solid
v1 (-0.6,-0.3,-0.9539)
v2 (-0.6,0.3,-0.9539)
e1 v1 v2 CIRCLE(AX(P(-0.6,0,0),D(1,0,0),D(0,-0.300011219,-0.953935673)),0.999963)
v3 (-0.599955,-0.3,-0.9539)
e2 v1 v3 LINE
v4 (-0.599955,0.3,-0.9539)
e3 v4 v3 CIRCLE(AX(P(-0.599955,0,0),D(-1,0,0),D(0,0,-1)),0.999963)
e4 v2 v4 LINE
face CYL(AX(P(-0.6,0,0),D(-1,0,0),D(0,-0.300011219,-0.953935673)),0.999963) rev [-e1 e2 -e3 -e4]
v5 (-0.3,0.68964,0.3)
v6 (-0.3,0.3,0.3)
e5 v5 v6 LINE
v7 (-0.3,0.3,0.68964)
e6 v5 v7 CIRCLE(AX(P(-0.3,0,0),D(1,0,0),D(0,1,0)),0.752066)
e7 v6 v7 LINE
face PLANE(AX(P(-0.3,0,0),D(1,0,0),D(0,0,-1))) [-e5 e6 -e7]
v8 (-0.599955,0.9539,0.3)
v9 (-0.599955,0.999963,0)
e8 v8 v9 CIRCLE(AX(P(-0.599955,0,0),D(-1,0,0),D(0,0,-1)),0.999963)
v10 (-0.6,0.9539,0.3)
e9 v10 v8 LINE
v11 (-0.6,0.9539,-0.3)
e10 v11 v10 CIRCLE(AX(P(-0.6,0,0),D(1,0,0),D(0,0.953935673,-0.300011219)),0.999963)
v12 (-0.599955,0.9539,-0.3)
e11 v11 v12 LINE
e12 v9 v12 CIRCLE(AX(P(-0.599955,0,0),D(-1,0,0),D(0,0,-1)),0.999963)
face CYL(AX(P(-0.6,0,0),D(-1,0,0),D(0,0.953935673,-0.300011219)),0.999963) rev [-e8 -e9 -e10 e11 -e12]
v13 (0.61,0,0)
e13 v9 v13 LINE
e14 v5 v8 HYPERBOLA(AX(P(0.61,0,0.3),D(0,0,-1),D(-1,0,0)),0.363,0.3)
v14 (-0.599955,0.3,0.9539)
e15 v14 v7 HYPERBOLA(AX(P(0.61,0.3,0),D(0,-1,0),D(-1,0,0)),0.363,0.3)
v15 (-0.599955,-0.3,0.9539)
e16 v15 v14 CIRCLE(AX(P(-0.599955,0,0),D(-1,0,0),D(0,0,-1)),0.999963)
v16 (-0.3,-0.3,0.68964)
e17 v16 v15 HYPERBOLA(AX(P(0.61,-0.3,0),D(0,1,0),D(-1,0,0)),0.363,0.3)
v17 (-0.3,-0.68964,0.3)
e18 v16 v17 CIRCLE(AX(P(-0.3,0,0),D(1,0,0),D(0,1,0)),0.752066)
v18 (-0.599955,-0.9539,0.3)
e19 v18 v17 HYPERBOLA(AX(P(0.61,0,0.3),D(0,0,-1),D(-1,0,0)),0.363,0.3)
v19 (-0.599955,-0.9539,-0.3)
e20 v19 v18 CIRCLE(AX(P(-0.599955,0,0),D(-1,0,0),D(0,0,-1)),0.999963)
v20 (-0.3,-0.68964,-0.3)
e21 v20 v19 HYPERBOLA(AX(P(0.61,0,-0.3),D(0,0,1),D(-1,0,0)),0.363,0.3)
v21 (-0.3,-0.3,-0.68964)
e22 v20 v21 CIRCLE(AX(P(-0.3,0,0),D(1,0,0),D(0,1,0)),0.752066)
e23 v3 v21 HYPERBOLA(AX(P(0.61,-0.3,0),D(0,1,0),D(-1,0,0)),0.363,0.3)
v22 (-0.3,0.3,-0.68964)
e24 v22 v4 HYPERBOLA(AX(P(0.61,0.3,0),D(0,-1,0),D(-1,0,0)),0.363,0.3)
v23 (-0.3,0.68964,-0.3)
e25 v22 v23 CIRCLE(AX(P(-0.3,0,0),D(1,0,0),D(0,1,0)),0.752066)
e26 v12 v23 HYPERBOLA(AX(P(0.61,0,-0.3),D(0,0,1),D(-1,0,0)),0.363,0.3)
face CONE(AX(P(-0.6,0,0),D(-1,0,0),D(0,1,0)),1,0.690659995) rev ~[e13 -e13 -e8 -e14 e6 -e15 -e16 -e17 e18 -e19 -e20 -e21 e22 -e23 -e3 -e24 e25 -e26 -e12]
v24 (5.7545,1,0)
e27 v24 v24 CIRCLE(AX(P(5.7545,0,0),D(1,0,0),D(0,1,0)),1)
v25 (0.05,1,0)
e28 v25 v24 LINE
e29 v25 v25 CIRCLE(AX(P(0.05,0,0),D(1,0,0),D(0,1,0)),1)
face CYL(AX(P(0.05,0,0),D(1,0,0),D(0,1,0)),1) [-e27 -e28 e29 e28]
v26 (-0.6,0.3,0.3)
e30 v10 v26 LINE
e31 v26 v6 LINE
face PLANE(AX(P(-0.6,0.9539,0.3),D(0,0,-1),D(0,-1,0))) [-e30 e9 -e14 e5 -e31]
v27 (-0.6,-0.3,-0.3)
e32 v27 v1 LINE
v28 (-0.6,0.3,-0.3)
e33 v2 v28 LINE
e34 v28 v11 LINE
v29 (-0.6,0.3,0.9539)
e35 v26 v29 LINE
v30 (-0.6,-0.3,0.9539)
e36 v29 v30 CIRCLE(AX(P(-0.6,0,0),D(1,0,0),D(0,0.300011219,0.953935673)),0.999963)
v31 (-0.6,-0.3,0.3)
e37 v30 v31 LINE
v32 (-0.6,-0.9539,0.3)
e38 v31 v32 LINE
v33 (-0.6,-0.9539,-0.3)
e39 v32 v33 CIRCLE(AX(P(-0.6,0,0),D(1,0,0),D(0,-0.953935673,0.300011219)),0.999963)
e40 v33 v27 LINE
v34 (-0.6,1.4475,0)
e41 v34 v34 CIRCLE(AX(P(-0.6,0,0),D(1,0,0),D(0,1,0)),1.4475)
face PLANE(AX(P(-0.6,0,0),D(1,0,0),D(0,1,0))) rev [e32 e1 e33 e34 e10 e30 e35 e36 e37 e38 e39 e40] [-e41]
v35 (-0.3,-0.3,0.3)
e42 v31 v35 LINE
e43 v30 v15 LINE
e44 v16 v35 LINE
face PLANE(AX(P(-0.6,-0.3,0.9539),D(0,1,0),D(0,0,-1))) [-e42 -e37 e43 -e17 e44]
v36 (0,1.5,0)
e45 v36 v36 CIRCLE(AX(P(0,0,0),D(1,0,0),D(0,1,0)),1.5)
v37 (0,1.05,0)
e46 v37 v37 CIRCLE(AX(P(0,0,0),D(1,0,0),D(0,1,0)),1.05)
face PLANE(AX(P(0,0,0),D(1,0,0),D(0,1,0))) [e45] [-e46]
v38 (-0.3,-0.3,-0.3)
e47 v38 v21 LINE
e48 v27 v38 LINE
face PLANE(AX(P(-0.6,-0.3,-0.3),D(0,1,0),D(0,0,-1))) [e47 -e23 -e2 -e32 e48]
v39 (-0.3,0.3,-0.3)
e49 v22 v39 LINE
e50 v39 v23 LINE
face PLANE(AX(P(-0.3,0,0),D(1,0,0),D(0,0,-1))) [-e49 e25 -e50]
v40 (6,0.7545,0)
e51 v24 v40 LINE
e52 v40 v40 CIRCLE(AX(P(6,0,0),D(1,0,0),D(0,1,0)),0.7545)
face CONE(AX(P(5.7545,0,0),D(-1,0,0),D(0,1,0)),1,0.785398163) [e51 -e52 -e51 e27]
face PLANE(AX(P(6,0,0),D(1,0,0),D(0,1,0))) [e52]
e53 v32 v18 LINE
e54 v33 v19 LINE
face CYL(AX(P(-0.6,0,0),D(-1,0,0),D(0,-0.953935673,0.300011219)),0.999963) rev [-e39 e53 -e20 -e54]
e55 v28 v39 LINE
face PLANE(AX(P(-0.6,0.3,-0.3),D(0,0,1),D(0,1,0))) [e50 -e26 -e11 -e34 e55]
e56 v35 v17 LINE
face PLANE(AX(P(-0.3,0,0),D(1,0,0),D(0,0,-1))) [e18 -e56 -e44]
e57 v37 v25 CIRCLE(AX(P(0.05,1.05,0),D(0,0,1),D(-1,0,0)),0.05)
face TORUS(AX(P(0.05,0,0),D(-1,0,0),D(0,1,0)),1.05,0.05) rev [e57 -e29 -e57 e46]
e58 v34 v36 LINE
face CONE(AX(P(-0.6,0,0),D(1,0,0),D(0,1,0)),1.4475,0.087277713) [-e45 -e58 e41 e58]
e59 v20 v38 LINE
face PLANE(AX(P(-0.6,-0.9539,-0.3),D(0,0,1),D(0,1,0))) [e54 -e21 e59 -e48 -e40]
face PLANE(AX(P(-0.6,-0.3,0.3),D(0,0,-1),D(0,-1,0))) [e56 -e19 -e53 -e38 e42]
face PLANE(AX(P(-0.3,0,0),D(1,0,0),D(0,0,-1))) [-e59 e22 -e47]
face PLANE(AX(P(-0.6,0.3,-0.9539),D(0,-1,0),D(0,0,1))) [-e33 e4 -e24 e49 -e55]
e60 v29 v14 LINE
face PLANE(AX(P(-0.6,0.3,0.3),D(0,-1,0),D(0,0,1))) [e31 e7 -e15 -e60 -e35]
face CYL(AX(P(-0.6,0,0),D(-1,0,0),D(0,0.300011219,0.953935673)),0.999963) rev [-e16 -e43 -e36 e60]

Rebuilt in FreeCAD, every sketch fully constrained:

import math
import FreeCAD as App
import Part
import Sketcher
Q = App.Units.Quantity


def add_polygon(sketch, points):
    """Adds a closed chain of lines whose ends are joined by coincident constraints."""
    first, n = sketch.GeometryCount, len(points)
    for a, b in zip(points, points[1:] + points[:1]):
        sketch.addGeometry(Part.LineSegment(App.Vector(*a, 0), App.Vector(*b, 0)), False)
    for i in range(n):
        sketch.addConstraint(Sketcher.Constraint("Coincident", first + i, 2, first + (i + 1) % n, 1))

doc = App.newDocument("Part")
body = doc.addObject("PartDesign::Body", "Body")

sketch1 = body.newObject("Sketcher::SketchObject", "Sketch")
sketch1.AttachmentSupport = (doc.getObject("XY_Plane"), [""])
sketch1.MapMode = "FlatFace"
sketch1.addGeometry([
    Part.LineSegment(App.Vector(-0.6, 0, 0), App.Vector(6, 0, 0)),
    Part.LineSegment(App.Vector(6, 0, 0), App.Vector(6, 0.75, 0)),
    Part.LineSegment(App.Vector(6, 0.75, 0), App.Vector(5.75, 1, 0)),
    Part.LineSegment(App.Vector(5.75, 1, 0), App.Vector(0.05, 1, 0)),
    Part.ArcOfCircle(Part.Circle(App.Vector(0.05, 1.05, 0), App.Vector(0, 0, 1), 0.05), math.radians(180), math.radians(270)),
    Part.LineSegment(App.Vector(0, 1.05, 0), App.Vector(0, 1.5, 0)),
    Part.LineSegment(App.Vector(0, 1.5, 0), App.Vector(-0.6, 1.5, 0)),
    Part.LineSegment(App.Vector(-0.6, 1.5, 0), App.Vector(-0.6, 0, 0)),
], False)
sketch1.addConstraint([
    Sketcher.Constraint("Coincident", 0, 2, 1, 1),
    Sketcher.Constraint("Coincident", 1, 2, 2, 1),
    Sketcher.Constraint("Coincident", 2, 2, 3, 1),
    Sketcher.Constraint("Tangent", 3, 2, 4, 2),
    Sketcher.Constraint("Tangent", 4, 1, 5, 1),
    Sketcher.Constraint("Coincident", 5, 2, 6, 1),
    Sketcher.Constraint("Coincident", 6, 2, 7, 1),
    Sketcher.Constraint("Coincident", 7, 2, 0, 1),
    Sketcher.Constraint("Horizontal", 0),
    Sketcher.Constraint("Vertical", 1),
    Sketcher.Constraint("Horizontal", 3),
    Sketcher.Constraint("Vertical", 5),
    Sketcher.Constraint("Horizontal", 6),
    Sketcher.Constraint("Vertical", 7),
    Sketcher.Constraint("PointOnObject", 0, 2, -1),
    Sketcher.Constraint("PointOnObject", 4, 1, -2),
    Sketcher.Constraint("Angle", 2, Q("135 deg")),
    Sketcher.Constraint("Radius", 4, Q("0.05 mm")),
    Sketcher.Constraint("DistanceX", 0, 1, 0, 2, Q("6.6 mm")),
    Sketcher.Constraint("DistanceX", 6, 2, 6, 1, Q("0.6 mm")),
    Sketcher.Constraint("DistanceY", 7, 2, 7, 1, Q("1.5 mm")),
    Sketcher.Constraint("DistanceY", -1, 1, 2, 2, Q("1 mm")),
    Sketcher.Constraint("DistanceX", 3, 2, 3, 1, Q("5.7045 mm")),
])
revolution = body.newObject("PartDesign::Revolution", "Revolution")
revolution.Profile = sketch1
revolution.ReferenceAxis = (sketch1, ["H_Axis"])
revolution.Angle = 360

sketch2 = body.newObject("Sketcher::SketchObject", "Sketch001")
sketch2.AttachmentSupport = (doc.getObject("XY_Plane"), [""])
sketch2.MapMode = "FlatFace"
add_polygon(sketch2, [(-0.6, 0), (0.6, 0), (-0.6, 1)])
sketch2.addConstraint([
    Sketcher.Constraint("Horizontal", 0),
    Sketcher.Constraint("Vertical", 2),
    Sketcher.Constraint("PointOnObject", 0, 2, -1),
    Sketcher.Constraint("DistanceY", 2, 2, 2, 1, Q("1 mm")),
    Sketcher.Constraint("DistanceX", 0, 1, 0, 2, Q("1.21 mm")),
    Sketcher.Constraint("DistanceX", 1, 2, -1, 1, Q("0.6 mm")),
])
groove = body.newObject("PartDesign::Groove", "Groove")
groove.Profile = sketch2
groove.ReferenceAxis = (sketch2, ["H_Axis"])
groove.Angle = 360

sketch3 = body.newObject("Sketcher::SketchObject", "Sketch002")
sketch3.AttachmentSupport = (doc.getObject("YZ_Plane"), [""])
sketch3.MapMode = "FlatFace"
sketch3.AttachmentOffset = App.Placement(App.Vector(0, 0, -0.6), App.Rotation())
sketch3.addGeometry([
    Part.Circle(App.Vector(0, 0, 0), App.Vector(0, 0, 1), 1.1),
    Part.ArcOfCircle(Part.Circle(App.Vector(0, 0, 0), App.Vector(0, 0, 1), 1), math.radians(73), math.radians(107)),
    Part.LineSegment(App.Vector(0.3, 1, 0), App.Vector(0.3, 0.3, 0)),
    Part.LineSegment(App.Vector(0.3, 0.3, 0), App.Vector(1, 0.3, 0)),
    Part.ArcOfCircle(Part.Circle(App.Vector(0, 0, 0), App.Vector(0, 0, 1), 1), math.radians(-17), math.radians(17)),
    Part.LineSegment(App.Vector(1, -0.3, 0), App.Vector(0.3, -0.3, 0)),
    Part.LineSegment(App.Vector(0.3, -0.3, 0), App.Vector(0.3, -1, 0)),
    Part.ArcOfCircle(Part.Circle(App.Vector(0, 0, 0), App.Vector(0, 0, 1), 1), math.radians(-107), math.radians(-73)),
    Part.LineSegment(App.Vector(-0.3, -1, 0), App.Vector(-0.3, -0.3, 0)),
    Part.LineSegment(App.Vector(-0.3, -0.3, 0), App.Vector(-1, -0.3, 0)),
    Part.ArcOfCircle(Part.Circle(App.Vector(0, 0, 0), App.Vector(0, 0, 1), 1), math.radians(163), math.radians(197)),
    Part.LineSegment(App.Vector(-1, 0.3, 0), App.Vector(-0.3, 0.3, 0)),
    Part.LineSegment(App.Vector(-0.3, 0.3, 0), App.Vector(-0.3, 1, 0)),
], False)
sketch3.addConstraint([
    Sketcher.Constraint("Coincident", 1, 1, 2, 1),
    Sketcher.Constraint("Coincident", 2, 2, 3, 1),
    Sketcher.Constraint("Coincident", 3, 2, 4, 2),
    Sketcher.Constraint("Coincident", 4, 1, 5, 1),
    Sketcher.Constraint("Coincident", 5, 2, 6, 1),
    Sketcher.Constraint("Coincident", 6, 2, 7, 2),
    Sketcher.Constraint("Coincident", 7, 1, 8, 1),
    Sketcher.Constraint("Coincident", 8, 2, 9, 1),
    Sketcher.Constraint("Coincident", 9, 2, 10, 2),
    Sketcher.Constraint("Coincident", 10, 1, 11, 1),
    Sketcher.Constraint("Coincident", 11, 2, 12, 1),
    Sketcher.Constraint("Coincident", 12, 2, 1, 2),
    Sketcher.Constraint("Vertical", 2),
    Sketcher.Constraint("Horizontal", 3),
    Sketcher.Constraint("Horizontal", 5),
    Sketcher.Constraint("Vertical", 6),
    Sketcher.Constraint("Vertical", 8),
    Sketcher.Constraint("Horizontal", 9),
    Sketcher.Constraint("Horizontal", 11),
    Sketcher.Constraint("Vertical", 12),
    Sketcher.Constraint("Coincident", 0, 3, -1, 1),
    Sketcher.Constraint("Coincident", 1, 3, -1, 1),
    Sketcher.Constraint("Coincident", 4, 3, -1, 1),
    Sketcher.Constraint("Coincident", 7, 3, -1, 1),
    Sketcher.Constraint("Coincident", 10, 3, -1, 1),
    Sketcher.Constraint("Equal", 1, 4),
    Sketcher.Constraint("Equal", 4, 7),
    Sketcher.Constraint("Equal", 7, 10),
    Sketcher.Constraint("Symmetric", 2, 2, 8, 2, -1, 1),
    Sketcher.Constraint("Symmetric", 5, 2, 11, 2, -1, 1),
    Sketcher.Constraint("Symmetric", 5, 2, 8, 2, -2),
    Sketcher.Constraint("Equal", 11, 2),
    Sketcher.Constraint("Radius", 1, Q("1 mm")),
    Sketcher.Constraint("Diameter", 0, Q("2.2 mm")),
    Sketcher.Constraint("DistanceX", -1, 1, 1, 1, Q("0.3 mm")),
])
pad1 = body.newObject("PartDesign::Pad", "Pad")
pad1.Profile = sketch3
pad1.Length = 0.3

sketch4 = body.newObject("Sketcher::SketchObject", "Sketch003")
sketch4.AttachmentSupport = (doc.getObject("XY_Plane"), [""])
sketch4.MapMode = "FlatFace"
add_polygon(sketch4, [(0, 1.5), (-0.6, 1.5), (-0.6, 1.45)])
sketch4.addConstraint([
    Sketcher.Constraint("Horizontal", 0),
    Sketcher.Constraint("Vertical", 1),
    Sketcher.Constraint("PointOnObject", 2, 2, -2),
    Sketcher.Constraint("Angle", 2, Q("5.0006 deg")),
    Sketcher.Constraint("DistanceX", 0, 2, 0, 1, Q("0.6 mm")),
    Sketcher.Constraint("DistanceY", -1, 1, 0, 2, Q("1.5 mm")),
])
groove2 = body.newObject("PartDesign::Groove", "Groove001")
groove2.Profile = sketch4
groove2.ReferenceAxis = (sketch4, ["H_Axis"])
groove2.Angle = 360

doc.recompute()
